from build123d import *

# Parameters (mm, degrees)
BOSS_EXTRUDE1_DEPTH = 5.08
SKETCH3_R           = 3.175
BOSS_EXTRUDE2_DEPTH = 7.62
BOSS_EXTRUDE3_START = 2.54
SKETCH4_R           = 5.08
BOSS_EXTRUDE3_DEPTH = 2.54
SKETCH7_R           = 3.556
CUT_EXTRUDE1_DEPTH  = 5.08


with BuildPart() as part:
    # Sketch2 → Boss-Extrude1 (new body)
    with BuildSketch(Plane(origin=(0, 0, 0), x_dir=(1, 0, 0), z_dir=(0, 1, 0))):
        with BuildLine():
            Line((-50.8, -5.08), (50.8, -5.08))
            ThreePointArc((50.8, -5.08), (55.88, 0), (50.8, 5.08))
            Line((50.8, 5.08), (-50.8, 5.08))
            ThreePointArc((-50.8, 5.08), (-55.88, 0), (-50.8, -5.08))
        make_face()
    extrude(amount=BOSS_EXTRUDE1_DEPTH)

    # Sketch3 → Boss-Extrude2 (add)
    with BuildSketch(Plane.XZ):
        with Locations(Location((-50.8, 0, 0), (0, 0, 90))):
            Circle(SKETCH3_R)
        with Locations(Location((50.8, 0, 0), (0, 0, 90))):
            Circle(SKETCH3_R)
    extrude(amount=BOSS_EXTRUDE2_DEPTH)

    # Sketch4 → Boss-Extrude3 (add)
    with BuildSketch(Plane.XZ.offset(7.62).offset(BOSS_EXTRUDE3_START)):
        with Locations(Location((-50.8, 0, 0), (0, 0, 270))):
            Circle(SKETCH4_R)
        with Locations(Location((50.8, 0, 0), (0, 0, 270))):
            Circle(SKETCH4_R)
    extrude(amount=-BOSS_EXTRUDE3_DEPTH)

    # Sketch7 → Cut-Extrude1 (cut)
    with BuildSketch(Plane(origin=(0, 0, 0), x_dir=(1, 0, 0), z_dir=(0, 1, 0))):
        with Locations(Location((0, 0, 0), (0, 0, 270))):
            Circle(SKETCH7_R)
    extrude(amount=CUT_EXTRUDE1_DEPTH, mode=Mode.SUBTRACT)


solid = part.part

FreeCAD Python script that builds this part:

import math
import FreeCAD as App
import Part
import Sketcher

V = App.Vector
Q = App.Units.Quantity

doc = App.newDocument("Part")
body = doc.addObject("PartDesign::Body", "Body")

sketch1 = body.newObject("Sketcher::SketchObject", "Sketch")
sketch1.AttachmentSupport = (doc.getObject("XZ_Plane"), [""])
sketch1.MapMode = "FlatFace"
sketch1.addGeometry([
    Part.LineSegment(V(-51, 5, 0), V(51, 5, 0)),
    Part.ArcOfCircle(Part.Circle(V(51, 0, 0), V(0, 0, 1), 5), math.radians(-90), math.radians(90)),
    Part.LineSegment(V(51, -5, 0), V(-51, -5, 0)),
    Part.ArcOfCircle(Part.Circle(V(-51, 0, 0), V(0, 0, 1), 5), math.radians(90), math.radians(270)),
], False)
sketch1.addConstraint([
    Sketcher.Constraint("Tangent", 0, 2, 1, 2),
    Sketcher.Constraint("Tangent", 1, 1, 2, 1),
    Sketcher.Constraint("Tangent", 2, 2, 3, 2),
    Sketcher.Constraint("Tangent", 3, 1, 0, 1),
    Sketcher.Constraint("Horizontal", 0),
    Sketcher.Constraint("Horizontal", 2),
    Sketcher.Constraint("Symmetric", 1, 3, 3, 3, -1, 1),
    Sketcher.Constraint("Radius", 1, Q("0.2 in")),
    Sketcher.Constraint("DistanceX", 0, 1, 0, 2, Q("4 in")),
])
pad1 = body.newObject("PartDesign::Pad", "Pad")
pad1.Profile = sketch1
pad1.Length = Q("0.2 in")
pad1.Reversed = True

sketch2 = body.newObject("Sketcher::SketchObject", "Sketch001")
sketch2.AttachmentSupport = (doc.getObject("XZ_Plane"), [""])
sketch2.MapMode = "FlatFace"
sketch2.addGeometry([
    Part.Circle(V(-50.8, 0, 0), V(0, 0, 1), 3.2),
    Part.Circle(V(50.8, 0, 0), V(0, 0, 1), 3.2),
], False)
sketch2.addConstraint([
    Sketcher.Constraint("Equal", 0, 1),
    Sketcher.Constraint("Symmetric", 0, 3, 1, 3, -1, 1),
    Sketcher.Constraint("PointOnObject", 0, 3, -1),
    Sketcher.Constraint("Diameter", 0, Q("0.25 in")),
    Sketcher.Constraint("DistanceX", 0, 3, -1, 1, Q("2 in")),
])
pad2 = body.newObject("PartDesign::Pad", "Pad001")
pad2.Profile = sketch2
pad2.Length = Q("0.3 in")

sketch3 = body.newObject("Sketcher::SketchObject", "Sketch002")
sketch3.AttachmentSupport = (doc.getObject("XZ_Plane"), [""])
sketch3.MapMode = "FlatFace"
sketch3.AttachmentOffset = App.Placement(V(0, 0, 0.4 * 25.4), App.Rotation())
sketch3.addGeometry([
    Part.Circle(V(-51, 0, 0), V(0, 0, 1), 5),
    Part.Circle(V(51, 0, 0), V(0, 0, 1), 5),
], False)
sketch3.addConstraint([
    Sketcher.Constraint("Equal", 0, 1),
    Sketcher.Constraint("Symmetric", 0, 3, 1, 3, -1, 1),
    Sketcher.Constraint("PointOnObject", 0, 3, -1),
    Sketcher.Constraint("Diameter", 0, Q("0.4 in")),
    Sketcher.Constraint("DistanceX", 0, 3, -1, 1, Q("2 in")),
])
pad3 = body.newObject("PartDesign::Pad", "Pad002")
pad3.Profile = sketch3
pad3.Length = Q("0.1 in")
pad3.Reversed = True

sketch4 = body.newObject("Sketcher::SketchObject", "Sketch003")
sketch4.AttachmentSupport = (doc.getObject("XZ_Plane"), [""])
sketch4.MapMode = "FlatFace"
sketch4.addGeometry(Part.Circle(V(0, 0, 0), V(0, 0, 1), 3.6), False)
sketch4.addConstraint([
    Sketcher.Constraint("Coincident", 0, 3, -1, 1),
    Sketcher.Constraint("Diameter", 0, Q("0.28 in")),
])
pocket1 = body.newObject("PartDesign::Pocket", "Pocket")
pocket1.Profile = sketch4
pocket1.Length = Q("0.2 in")

doc.recompute()
